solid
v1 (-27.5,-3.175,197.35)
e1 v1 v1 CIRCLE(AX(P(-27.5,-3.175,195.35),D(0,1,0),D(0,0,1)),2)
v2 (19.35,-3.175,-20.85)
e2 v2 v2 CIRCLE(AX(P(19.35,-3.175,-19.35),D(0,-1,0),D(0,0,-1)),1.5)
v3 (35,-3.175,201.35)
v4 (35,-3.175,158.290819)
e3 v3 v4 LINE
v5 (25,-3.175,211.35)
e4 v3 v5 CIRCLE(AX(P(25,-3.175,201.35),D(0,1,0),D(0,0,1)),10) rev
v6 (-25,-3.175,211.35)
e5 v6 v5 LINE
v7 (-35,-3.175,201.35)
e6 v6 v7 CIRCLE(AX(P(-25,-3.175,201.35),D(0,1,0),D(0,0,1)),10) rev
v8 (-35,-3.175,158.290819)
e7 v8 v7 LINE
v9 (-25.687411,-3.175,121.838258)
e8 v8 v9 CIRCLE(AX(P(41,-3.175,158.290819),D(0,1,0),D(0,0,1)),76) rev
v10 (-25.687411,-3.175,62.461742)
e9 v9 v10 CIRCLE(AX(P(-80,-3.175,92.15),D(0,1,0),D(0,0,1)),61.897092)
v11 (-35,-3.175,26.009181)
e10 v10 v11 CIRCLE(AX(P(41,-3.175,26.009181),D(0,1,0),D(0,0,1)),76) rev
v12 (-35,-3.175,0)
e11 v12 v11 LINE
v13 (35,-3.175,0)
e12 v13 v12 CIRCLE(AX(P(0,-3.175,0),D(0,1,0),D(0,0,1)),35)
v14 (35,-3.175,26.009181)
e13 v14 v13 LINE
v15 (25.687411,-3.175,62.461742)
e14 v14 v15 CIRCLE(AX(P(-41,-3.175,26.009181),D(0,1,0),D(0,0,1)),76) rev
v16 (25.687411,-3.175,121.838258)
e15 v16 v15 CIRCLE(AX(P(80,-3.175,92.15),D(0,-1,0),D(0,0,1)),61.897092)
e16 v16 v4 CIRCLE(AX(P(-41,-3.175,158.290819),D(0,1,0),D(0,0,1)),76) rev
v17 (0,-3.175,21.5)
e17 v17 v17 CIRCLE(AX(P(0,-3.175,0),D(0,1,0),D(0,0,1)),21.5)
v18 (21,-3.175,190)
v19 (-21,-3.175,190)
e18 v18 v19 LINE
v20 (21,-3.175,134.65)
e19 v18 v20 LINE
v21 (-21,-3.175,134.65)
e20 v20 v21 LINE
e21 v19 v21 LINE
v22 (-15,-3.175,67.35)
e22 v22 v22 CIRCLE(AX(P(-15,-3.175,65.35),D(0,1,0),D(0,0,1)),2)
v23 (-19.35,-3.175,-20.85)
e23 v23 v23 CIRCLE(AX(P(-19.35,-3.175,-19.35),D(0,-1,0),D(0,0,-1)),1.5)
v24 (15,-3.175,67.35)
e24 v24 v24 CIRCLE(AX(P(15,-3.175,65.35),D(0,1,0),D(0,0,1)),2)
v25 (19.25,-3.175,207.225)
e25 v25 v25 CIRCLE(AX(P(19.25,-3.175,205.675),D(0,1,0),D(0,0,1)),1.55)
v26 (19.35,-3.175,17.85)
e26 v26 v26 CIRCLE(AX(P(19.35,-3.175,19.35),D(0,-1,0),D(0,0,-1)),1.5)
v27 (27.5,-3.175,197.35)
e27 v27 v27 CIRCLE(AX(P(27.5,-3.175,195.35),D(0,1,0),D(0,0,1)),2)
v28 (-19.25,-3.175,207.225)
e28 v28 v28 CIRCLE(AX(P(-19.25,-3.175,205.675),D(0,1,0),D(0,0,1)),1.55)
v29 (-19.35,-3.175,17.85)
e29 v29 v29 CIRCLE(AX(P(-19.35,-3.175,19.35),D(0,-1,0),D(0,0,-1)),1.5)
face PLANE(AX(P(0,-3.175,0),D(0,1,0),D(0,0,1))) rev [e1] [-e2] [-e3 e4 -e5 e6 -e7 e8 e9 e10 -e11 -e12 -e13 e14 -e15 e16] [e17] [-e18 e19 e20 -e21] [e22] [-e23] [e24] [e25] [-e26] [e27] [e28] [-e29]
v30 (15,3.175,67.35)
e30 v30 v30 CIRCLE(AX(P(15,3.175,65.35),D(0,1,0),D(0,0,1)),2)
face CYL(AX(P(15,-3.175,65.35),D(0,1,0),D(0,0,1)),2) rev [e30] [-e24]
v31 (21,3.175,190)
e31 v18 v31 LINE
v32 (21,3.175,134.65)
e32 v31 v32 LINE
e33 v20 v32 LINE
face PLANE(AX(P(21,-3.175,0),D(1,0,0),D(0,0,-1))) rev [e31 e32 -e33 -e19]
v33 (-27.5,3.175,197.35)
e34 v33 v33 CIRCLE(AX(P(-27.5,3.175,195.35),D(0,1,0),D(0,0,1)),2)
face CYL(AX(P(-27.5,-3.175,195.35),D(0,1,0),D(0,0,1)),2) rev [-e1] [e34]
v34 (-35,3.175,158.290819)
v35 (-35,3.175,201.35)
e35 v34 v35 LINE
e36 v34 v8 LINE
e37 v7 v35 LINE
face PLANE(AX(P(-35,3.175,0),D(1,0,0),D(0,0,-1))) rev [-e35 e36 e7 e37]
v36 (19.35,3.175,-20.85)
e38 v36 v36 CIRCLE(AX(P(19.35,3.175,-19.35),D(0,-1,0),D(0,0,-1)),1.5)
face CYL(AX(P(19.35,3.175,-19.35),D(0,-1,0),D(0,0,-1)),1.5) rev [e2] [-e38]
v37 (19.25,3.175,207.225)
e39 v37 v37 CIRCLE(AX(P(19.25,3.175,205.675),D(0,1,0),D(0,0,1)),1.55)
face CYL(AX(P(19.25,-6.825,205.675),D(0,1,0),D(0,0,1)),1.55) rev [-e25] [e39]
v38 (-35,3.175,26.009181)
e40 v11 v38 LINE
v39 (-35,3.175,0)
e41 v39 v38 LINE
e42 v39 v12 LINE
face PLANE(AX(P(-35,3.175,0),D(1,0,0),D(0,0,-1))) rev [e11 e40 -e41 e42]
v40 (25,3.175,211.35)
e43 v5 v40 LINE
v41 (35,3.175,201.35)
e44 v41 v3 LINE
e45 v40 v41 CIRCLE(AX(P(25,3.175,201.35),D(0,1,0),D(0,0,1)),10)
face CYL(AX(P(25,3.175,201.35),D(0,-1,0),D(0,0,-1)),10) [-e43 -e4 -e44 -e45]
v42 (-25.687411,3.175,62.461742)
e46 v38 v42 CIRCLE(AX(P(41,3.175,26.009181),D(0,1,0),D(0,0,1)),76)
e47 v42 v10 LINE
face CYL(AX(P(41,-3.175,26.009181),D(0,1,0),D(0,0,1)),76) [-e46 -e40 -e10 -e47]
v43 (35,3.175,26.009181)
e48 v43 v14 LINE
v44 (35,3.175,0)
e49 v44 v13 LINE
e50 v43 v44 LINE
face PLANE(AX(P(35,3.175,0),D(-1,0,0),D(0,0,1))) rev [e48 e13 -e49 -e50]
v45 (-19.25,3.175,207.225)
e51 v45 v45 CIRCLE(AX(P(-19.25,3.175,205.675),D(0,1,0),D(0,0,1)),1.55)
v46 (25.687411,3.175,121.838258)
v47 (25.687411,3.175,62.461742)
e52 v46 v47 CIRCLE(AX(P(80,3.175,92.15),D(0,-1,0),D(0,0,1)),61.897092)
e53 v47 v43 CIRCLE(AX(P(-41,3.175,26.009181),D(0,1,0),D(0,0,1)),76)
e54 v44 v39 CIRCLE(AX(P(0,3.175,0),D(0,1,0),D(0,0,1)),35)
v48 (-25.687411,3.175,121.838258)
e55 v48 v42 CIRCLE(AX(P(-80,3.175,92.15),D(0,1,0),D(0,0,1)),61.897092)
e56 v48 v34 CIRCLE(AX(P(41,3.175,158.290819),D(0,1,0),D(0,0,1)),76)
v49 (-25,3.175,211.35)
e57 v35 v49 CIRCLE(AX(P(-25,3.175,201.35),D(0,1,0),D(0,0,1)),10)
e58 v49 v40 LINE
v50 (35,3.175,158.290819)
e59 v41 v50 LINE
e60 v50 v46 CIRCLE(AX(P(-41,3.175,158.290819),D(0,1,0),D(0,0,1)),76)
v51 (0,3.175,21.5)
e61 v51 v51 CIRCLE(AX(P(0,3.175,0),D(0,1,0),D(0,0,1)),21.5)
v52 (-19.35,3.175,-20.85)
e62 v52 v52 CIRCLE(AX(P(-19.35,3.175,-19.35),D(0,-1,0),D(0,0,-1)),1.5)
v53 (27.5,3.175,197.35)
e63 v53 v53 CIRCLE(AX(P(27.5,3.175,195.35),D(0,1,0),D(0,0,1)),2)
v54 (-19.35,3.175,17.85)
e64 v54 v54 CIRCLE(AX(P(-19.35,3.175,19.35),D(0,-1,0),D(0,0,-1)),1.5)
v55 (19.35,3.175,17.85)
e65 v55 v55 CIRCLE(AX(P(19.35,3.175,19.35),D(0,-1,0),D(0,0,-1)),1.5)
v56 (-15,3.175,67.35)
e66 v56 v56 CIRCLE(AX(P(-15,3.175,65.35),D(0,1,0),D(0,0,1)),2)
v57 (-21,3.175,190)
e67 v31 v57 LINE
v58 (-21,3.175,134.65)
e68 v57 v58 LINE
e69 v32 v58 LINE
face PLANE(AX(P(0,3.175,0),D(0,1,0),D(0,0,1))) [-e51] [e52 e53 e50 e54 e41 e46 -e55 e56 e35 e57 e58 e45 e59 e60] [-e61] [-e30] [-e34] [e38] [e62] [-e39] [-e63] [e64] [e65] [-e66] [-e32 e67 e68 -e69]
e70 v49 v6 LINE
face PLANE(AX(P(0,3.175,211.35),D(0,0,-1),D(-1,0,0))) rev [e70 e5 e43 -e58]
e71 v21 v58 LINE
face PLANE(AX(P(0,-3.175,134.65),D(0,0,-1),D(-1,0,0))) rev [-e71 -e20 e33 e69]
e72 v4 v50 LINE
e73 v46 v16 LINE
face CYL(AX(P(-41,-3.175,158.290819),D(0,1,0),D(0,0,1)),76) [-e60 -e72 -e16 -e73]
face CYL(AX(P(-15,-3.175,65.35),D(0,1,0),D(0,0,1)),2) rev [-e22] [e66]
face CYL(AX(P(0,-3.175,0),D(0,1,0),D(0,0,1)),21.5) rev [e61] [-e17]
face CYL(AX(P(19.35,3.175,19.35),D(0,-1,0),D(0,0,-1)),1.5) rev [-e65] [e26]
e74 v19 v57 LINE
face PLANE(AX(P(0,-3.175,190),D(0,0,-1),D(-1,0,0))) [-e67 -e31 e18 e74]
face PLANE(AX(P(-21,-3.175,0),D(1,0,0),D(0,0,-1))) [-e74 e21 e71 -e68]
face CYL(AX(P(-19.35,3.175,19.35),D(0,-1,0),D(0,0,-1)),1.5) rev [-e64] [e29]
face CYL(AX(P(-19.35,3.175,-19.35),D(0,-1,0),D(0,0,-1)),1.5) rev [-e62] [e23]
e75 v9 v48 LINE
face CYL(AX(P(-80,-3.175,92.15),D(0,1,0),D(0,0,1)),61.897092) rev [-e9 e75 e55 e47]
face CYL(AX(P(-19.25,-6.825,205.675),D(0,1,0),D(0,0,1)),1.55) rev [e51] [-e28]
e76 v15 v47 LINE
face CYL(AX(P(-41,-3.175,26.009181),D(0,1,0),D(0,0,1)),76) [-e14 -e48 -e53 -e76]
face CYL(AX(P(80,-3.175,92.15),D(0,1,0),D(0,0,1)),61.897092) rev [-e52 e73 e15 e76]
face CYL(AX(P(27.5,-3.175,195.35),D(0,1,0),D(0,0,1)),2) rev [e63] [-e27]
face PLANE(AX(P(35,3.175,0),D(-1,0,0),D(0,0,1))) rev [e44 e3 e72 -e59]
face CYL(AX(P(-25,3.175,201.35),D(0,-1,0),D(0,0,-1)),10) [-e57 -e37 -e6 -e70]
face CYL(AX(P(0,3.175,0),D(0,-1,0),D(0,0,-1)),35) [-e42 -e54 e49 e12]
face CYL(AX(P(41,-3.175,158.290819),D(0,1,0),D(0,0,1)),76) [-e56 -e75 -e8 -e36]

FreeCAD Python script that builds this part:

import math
import FreeCAD as App
import Part
import Sketcher

V = App.Vector


def edges_at(feature, points):
    """Names of the edges that pass closest to the given points."""
    edges = feature.Shape.Edges
    near = lambda p: min(range(len(edges)), key=lambda i: edges[i].distToShape(Part.Vertex(*p))[0])
    return sorted({f"Edge{near(p) + 1}" for p in points})

doc = App.newDocument("Part")
body = doc.addObject("PartDesign::Body", "Body")

sketch1 = body.newObject("Sketcher::SketchObject", "Sketch")
sketch1.AttachmentSupport = (doc.getObject("XZ_Plane"), [""])
sketch1.MapMode = "FlatFace"
sketch1.addGeometry([
    Part.LineSegment(V(35, 211, 0), V(35, 0, 0)),
    Part.ArcOfCircle(Part.Circle(V(0, 0, 0), V(0, 0, 1), 35), math.radians(180), math.radians(360)),
    Part.LineSegment(V(-35, 0, 0), V(-35, 211, 0)),
    Part.LineSegment(V(-35, 211, 0), V(35, 211, 0)),
], False)
sketch1.addConstraint([
    Sketcher.Constraint("Tangent", 0, 2, 1, 2),
    Sketcher.Constraint("Tangent", 1, 1, 2, 1),
    Sketcher.Constraint("Coincident", 2, 2, 3, 1),
    Sketcher.Constraint("Coincident", 3, 2, 0, 1),
    Sketcher.Constraint("Vertical", 0),
    Sketcher.Constraint("Vertical", 2),
    Sketcher.Constraint("Horizontal", 3),
    Sketcher.Constraint("Coincident", 1, 3, -1, 1),
    Sketcher.Constraint("Radius", 1, 35.0),
    Sketcher.Constraint("DistanceY", 0, 2, 0, 1, 211.35),
])
pad1 = body.newObject("PartDesign::Pad", "Pad")
pad1.Profile = sketch1
pad1.Length = 6.35
pad1.Midplane = True

sketch2 = body.newObject("Sketcher::SketchObject", "Sketch001")
sketch2.AttachmentSupport = (doc.getObject("XZ_Plane"), [""])
sketch2.MapMode = "FlatFace"
sketch2.AttachmentOffset = App.Placement(V(0, 0, -3.175), App.Rotation())
sketch2.addGeometry(Part.Circle(V(0, 0, 0), V(0, 0, 1), 22), False)
sketch2.addConstraint([
    Sketcher.Constraint("Coincident", 0, 3, -1, 1),
    Sketcher.Constraint("Diameter", 0, 43.0),
])
pocket1 = body.newObject("PartDesign::Pocket", "Pocket")
pocket1.Profile = sketch2
pocket1.Type = "ThroughAll"
pocket1.Reversed = True

sketch3 = body.newObject("Sketcher::SketchObject", "Sketch002")
sketch3.AttachmentSupport = (doc.getObject("XZ_Plane"), [""])
sketch3.MapMode = "FlatFace"
sketch3.AttachmentOffset = App.Placement(V(0, 0, -3.175), App.Rotation())
sketch3.addGeometry([
    Part.LineSegment(V(-21, 135, 0), V(-21, 190, 0)),
    Part.LineSegment(V(-21, 190, 0), V(21, 190, 0)),
    Part.LineSegment(V(21, 190, 0), V(21, 135, 0)),
    Part.LineSegment(V(21, 135, 0), V(-21, 135, 0)),
], False)
sketch3.addConstraint([
    Sketcher.Constraint("Coincident", 0, 2, 1, 1),
    Sketcher.Constraint("Coincident", 1, 2, 2, 1),
    Sketcher.Constraint("Coincident", 2, 2, 3, 1),
    Sketcher.Constraint("Coincident", 3, 2, 0, 1),
    Sketcher.Constraint("Vertical", 0),
    Sketcher.Constraint("Horizontal", 1),
    Sketcher.Constraint("Vertical", 2),
    Sketcher.Constraint("Horizontal", 3),
    Sketcher.Constraint("DistanceX", 1, 1, 1, 2, 42.0),
    Sketcher.Constraint("DistanceX", 0, 2, -1, 1, 21.0),
    Sketcher.Constraint("DistanceY", -1, 1, 0, 2, 190.0),
    Sketcher.Constraint("DistanceY", 0, 1, 0, 2, 55.35),
])
pocket2 = body.newObject("PartDesign::Pocket", "Pocket001")
pocket2.Profile = sketch3
pocket2.Type = "ThroughAll"
pocket2.Reversed = True

sketch4 = body.newObject("Sketcher::SketchObject", "Sketch003")
sketch4.AttachmentSupport = (doc.getObject("XZ_Plane"), [""])
sketch4.MapMode = "FlatFace"
sketch4.AttachmentOffset = App.Placement(V(0, 0, 3.175), App.Rotation())
sketch4.addGeometry([
    Part.Circle(V(-19.4, 19.4, 0), V(0, 0, 1), 1.5),
    Part.Circle(V(19.4, 19.4, 0), V(0, 0, 1), 1.5),
    Part.Circle(V(19.4, -19.4, 0), V(0, 0, 1), 1.5),
    Part.Circle(V(-19.4, -19.4, 0), V(0, 0, 1), 1.5),
], False)
sketch4.addConstraint([
    Sketcher.Constraint("Equal", 0, 1),
    Sketcher.Constraint("Equal", 1, 2),
    Sketcher.Constraint("Equal", 2, 3),
    Sketcher.Constraint("Symmetric", 0, 3, 2, 3, -1, 1),
    Sketcher.Constraint("Symmetric", 1, 3, 3, 3, -1, 1),
    Sketcher.Constraint("Symmetric", 0, 3, 1, 3, -2),
    Sketcher.Constraint("Diameter", 0, 3.0),
    Sketcher.Constraint("DistanceX", 0, 3, 1, 3, 38.7),
    Sketcher.Constraint("DistanceY", 2, 3, 1, 3, 38.7),
])
pocket3 = body.newObject("PartDesign::Pocket", "Pocket002")
pocket3.Profile = sketch4
pocket3.Type = "ThroughAll"
doc.recompute()

fillet = body.newObject("PartDesign::Fillet", "Fillet")
fillet.Base = (pocket3, edges_at(pocket3, [(35, 0, 211.35), (-35, 0, 211.35)]))
fillet.Radius = 10

sketch5 = body.newObject("Sketcher::SketchObject", "Sketch004")
sketch5.AttachmentSupport = (doc.getObject("XZ_Plane"), [""])
sketch5.MapMode = "FlatFace"
sketch5.AttachmentOffset = App.Placement(V(0, 0, -3.175), App.Rotation())
sketch5.addGeometry([
    Part.Circle(V(15, 65.3, 0), V(0, 0, 1), 2),
    Part.Circle(V(-15, 65.3, 0), V(0, 0, 1), 2),
    Part.Circle(V(27.5, 195.3, 0), V(0, 0, 1), 2),
    Part.Circle(V(-27.5, 195.3, 0), V(0, 0, 1), 2),
], False)
sketch5.addConstraint([
    Sketcher.Constraint("Equal", 0, 1),
    Sketcher.Constraint("Equal", 1, 2),
    Sketcher.Constraint("Equal", 2, 3),
    Sketcher.Constraint("Symmetric", 0, 3, 1, 3, -2),
    Sketcher.Constraint("Symmetric", 2, 3, 3, 3, -2),
    Sketcher.Constraint("Diameter", 0, 4.0),
    Sketcher.Constraint("DistanceX", -1, 1, 0, 3, 15.0),
    Sketcher.Constraint("DistanceY", 0, 3, 2, 3, 130.0),
    Sketcher.Constraint("DistanceX", 3, 3, 2, 3, 55.0),
    Sketcher.Constraint("DistanceY", -1, 1, 0, 3, 65.35),
])
pocket4 = body.newObject("PartDesign::Pocket", "Pocket003")
pocket4.Profile = sketch5
pocket4.Type = "ThroughAll"
pocket4.Reversed = True

sketch6 = body.newObject("Sketcher::SketchObject", "Sketch005")
sketch6.AttachmentSupport = (doc.getObject("XZ_Plane"), [""])
sketch6.MapMode = "FlatFace"
sketch6.AttachmentOffset = App.Placement(V(0, 0, -3.175), App.Rotation())
sketch6.addGeometry([
    Part.LineSegment(V(-35, 50, 0), V(-35, 135, 0)),
    Part.ArcOfCircle(Part.Circle(V(-80, 92, 0), V(0, 0, 1), 62), math.radians(-43), math.radians(43)),
], False)
sketch6.addConstraint([
    Sketcher.Constraint("Coincident", 0, 1, 1, 1),
    Sketcher.Constraint("Coincident", 1, 2, 0, 2),
    Sketcher.Constraint("Vertical", 0),
    Sketcher.Constraint("DistanceY", 0, 1, 0, 2, 85.0),
    Sketcher.Constraint("DistanceX", 1, 3, -1, 1, 80.0),
    Sketcher.Constraint("DistanceX", 0, 1, -1, 1, 35.0),
    Sketcher.Constraint("DistanceY", -1, 1, 1, 3, 92.15),
])
pocket5 = body.newObject("PartDesign::Pocket", "Pocket004")
pocket5.Profile = sketch6
pocket5.Type = "ThroughAll"
pocket5.Reversed = True
doc.recompute()

mirrored = body.newObject("PartDesign::Mirrored", "Mirrored")
mirrored.Originals = [pocket5]
mirrored.MirrorPlane = (doc.getObject("YZ_Plane"), [""])
body.Tip = mirrored
doc.recompute()

fillet2 = body.newObject("PartDesign::Fillet", "Fillet001")
fillet2.Base = (mirrored, edges_at(mirrored, [
    (35, 0, 134.65),
    (35, 0, 49.65),
    (-35, 0, 49.65),
    (-35, 0, 134.65),
]))
fillet2.Radius = 76

sketch7 = body.newObject("Sketcher::SketchObject", "Sketch006")
sketch7.AttachmentSupport = (doc.getObject("XZ_Plane"), [""])
sketch7.MapMode = "FlatFace"
sketch7.AttachmentOffset = App.Placement(V(0, 0, -3.175), App.Rotation())
sketch7.addGeometry([
    Part.Circle(V(-19.2, 205.7, 0), V(0, 0, 1), 1.6),
    Part.Circle(V(19.2, 205.7, 0), V(0, 0, 1), 1.6),
], False)
sketch7.addConstraint([
    Sketcher.Constraint("Equal", 0, 1),
    Sketcher.Constraint("Symmetric", 0, 3, 1, 3, -2),
    Sketcher.Constraint("Diameter", 0, 3.1),
    Sketcher.Constraint("DistanceX", 0, 3, 1, 3, 38.5),
    Sketcher.Constraint("DistanceY", -1, 1, 0, 3, 205.675),
])
pocket6 = body.newObject("PartDesign::Pocket", "Pocket005")
pocket6.Profile = sketch7
pocket6.Length = 10
pocket6.Reversed = True

doc.recompute()
